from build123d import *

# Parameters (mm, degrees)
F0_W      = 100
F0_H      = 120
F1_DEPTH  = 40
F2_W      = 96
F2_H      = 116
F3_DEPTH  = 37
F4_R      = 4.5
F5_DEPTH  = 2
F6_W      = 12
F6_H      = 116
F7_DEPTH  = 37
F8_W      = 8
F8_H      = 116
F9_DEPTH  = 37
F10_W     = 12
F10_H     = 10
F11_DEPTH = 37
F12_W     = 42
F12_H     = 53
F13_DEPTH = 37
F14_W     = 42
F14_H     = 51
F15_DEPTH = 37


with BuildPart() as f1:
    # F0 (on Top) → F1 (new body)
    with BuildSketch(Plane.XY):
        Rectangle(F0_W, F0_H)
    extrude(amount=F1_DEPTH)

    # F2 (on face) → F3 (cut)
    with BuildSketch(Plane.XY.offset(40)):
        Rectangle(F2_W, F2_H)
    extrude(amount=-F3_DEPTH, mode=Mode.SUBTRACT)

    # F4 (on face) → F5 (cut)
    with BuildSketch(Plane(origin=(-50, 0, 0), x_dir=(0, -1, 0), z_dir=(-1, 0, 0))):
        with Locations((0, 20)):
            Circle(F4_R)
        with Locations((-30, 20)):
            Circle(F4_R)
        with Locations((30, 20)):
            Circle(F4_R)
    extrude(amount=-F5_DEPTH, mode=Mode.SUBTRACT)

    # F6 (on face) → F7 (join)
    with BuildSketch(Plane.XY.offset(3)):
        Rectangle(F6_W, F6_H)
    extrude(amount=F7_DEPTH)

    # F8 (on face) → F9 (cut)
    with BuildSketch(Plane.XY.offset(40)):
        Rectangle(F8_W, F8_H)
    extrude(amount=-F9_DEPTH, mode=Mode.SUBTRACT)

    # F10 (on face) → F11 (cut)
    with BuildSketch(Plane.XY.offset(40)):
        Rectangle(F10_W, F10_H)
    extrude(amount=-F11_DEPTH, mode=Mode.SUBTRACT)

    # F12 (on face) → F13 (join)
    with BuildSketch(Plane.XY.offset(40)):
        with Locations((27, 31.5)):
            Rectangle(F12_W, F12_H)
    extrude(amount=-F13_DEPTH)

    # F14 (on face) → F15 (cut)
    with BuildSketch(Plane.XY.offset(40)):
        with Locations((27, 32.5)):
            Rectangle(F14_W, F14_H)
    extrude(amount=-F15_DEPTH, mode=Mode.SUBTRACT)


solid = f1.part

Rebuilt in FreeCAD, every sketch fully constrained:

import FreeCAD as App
import Part
import Sketcher

V = App.Vector


def add_polygon(sketch, points):
    """Adds a closed chain of lines whose ends are joined by coincident constraints."""
    first, n = sketch.GeometryCount, len(points)
    for a, b in zip(points, points[1:] + points[:1]):
        sketch.addGeometry(Part.LineSegment(App.Vector(*a, 0), App.Vector(*b, 0)), False)
    for i in range(n):
        sketch.addConstraint(Sketcher.Constraint("Coincident", first + i, 2, first + (i + 1) % n, 1))

doc = App.newDocument("Part")
body = doc.addObject("PartDesign::Body", "Body")

# Sketch on XY plane
sketch1 = body.newObject("Sketcher::SketchObject", "Sketch")
sketch1.AttachmentSupport = (doc.getObject("XY_Plane"), [""])
sketch1.MapMode = "FlatFace"
add_polygon(sketch1, [(-50, 60), (-50, -60), (50, -60), (50, 60)])  # lines 0-3
sketch1.addConstraint([
    Sketcher.Constraint("Vertical", 0),
    Sketcher.Constraint("Horizontal", 1),
    Sketcher.Constraint("Vertical", 2),
    Sketcher.Constraint("Horizontal", 3),
    Sketcher.Constraint("Symmetric", 0, 2, 2, 2, -1, 1),
    Sketcher.Constraint("DistanceX", 1, 1, 1, 2, 100.0),
    Sketcher.Constraint("DistanceY", 0, 2, 0, 1, 120.0),
])
pad1 = body.newObject("PartDesign::Pad", "Pad")
pad1.Profile = sketch1
pad1.Length = 40

# Sketch on XY plane
sketch2 = body.newObject("Sketcher::SketchObject", "Sketch001")
sketch2.AttachmentSupport = (doc.getObject("XY_Plane"), [""])
sketch2.MapMode = "FlatFace"
sketch2.AttachmentOffset = App.Placement(V(0, 0, 40), App.Rotation())
add_polygon(sketch2, [(-48, 58), (-48, -58), (48, -58), (48, 58)])  # lines 0-3
sketch2.addConstraint([
    Sketcher.Constraint("Vertical", 0),
    Sketcher.Constraint("Horizontal", 1),
    Sketcher.Constraint("Vertical", 2),
    Sketcher.Constraint("Horizontal", 3),
    Sketcher.Constraint("Symmetric", 0, 2, 2, 2, -1, 1),
    Sketcher.Constraint("DistanceX", 1, 1, 1, 2, 96.0),
    Sketcher.Constraint("DistanceY", 0, 2, 0, 1, 116.0),
])
pocket1 = body.newObject("PartDesign::Pocket", "Pocket")
pocket1.Profile = sketch2
pocket1.Length = 37

# Sketch on YZ plane
sketch3 = body.newObject("Sketcher::SketchObject", "Sketch002")
sketch3.AttachmentSupport = (doc.getObject("YZ_Plane"), [""])
sketch3.MapMode = "FlatFace"
sketch3.AttachmentOffset = App.Placement(V(0, 0, -50), App.Rotation())
sketch3.addGeometry([
    Part.Circle(V(0, 20, 0), V(0, 0, 1), 4.5),
    Part.Circle(V(30, 20, 0), V(0, 0, 1), 4.5),
    Part.Circle(V(-30, 20, 0), V(0, 0, 1), 4.5),
], False)
sketch3.addConstraint([
    Sketcher.Constraint("Equal", 0, 1),
    Sketcher.Constraint("Equal", 1, 2),
    Sketcher.Constraint("Symmetric", 1, 3, 2, 3, -2),
    Sketcher.Constraint("PointOnObject", 0, 3, -2),
    Sketcher.Constraint("Horizontal", 0, 3, 1, 3),
    Sketcher.Constraint("Diameter", 0, 9.0),
    Sketcher.Constraint("DistanceY", -1, 1, 0, 3, 20.0),
    Sketcher.Constraint("DistanceX", -1, 1, 1, 3, 30.0),
])
pocket2 = body.newObject("PartDesign::Pocket", "Pocket001")
pocket2.Profile = sketch3
pocket2.Length = 2
pocket2.Reversed = True

# Sketch on XY plane
sketch4 = body.newObject("Sketcher::SketchObject", "Sketch003")
sketch4.AttachmentSupport = (doc.getObject("XY_Plane"), [""])
sketch4.MapMode = "FlatFace"
sketch4.AttachmentOffset = App.Placement(V(0, 0, 3), App.Rotation())
add_polygon(sketch4, [(-6, 58), (-6, -58), (6, -58), (6, 58)])  # lines 0-3
sketch4.addConstraint([
    Sketcher.Constraint("Vertical", 0),
    Sketcher.Constraint("Horizontal", 1),
    Sketcher.Constraint("Vertical", 2),
    Sketcher.Constraint("Horizontal", 3),
    Sketcher.Constraint("Symmetric", 0, 2, 2, 2, -1, 1),
    Sketcher.Constraint("DistanceX", 1, 1, 1, 2, 12.0),
    Sketcher.Constraint("DistanceY", 0, 2, 0, 1, 116.0),
])
pad2 = body.newObject("PartDesign::Pad", "Pad001")
pad2.Profile = sketch4
pad2.Length = 37

# Sketch on XY plane
sketch5 = body.newObject("Sketcher::SketchObject", "Sketch004")
sketch5.AttachmentSupport = (doc.getObject("XY_Plane"), [""])
sketch5.MapMode = "FlatFace"
sketch5.AttachmentOffset = App.Placement(V(0, 0, 40), App.Rotation())
add_polygon(sketch5, [(-4, 58), (-4, -58), (4, -58), (4, 58)])  # lines 0-3
sketch5.addConstraint([
    Sketcher.Constraint("Vertical", 0),
    Sketcher.Constraint("Horizontal", 1),
    Sketcher.Constraint("Vertical", 2),
    Sketcher.Constraint("Horizontal", 3),
    Sketcher.Constraint("Symmetric", 0, 2, 2, 2, -1, 1),
    Sketcher.Constraint("DistanceX", 1, 1, 1, 2, 8.0),
    Sketcher.Constraint("DistanceY", 0, 2, 0, 1, 116.0),
])
pocket3 = body.newObject("PartDesign::Pocket", "Pocket002")
pocket3.Profile = sketch5
pocket3.Length = 37

# Sketch on XY plane
sketch6 = body.newObject("Sketcher::SketchObject", "Sketch005")
sketch6.AttachmentSupport = (doc.getObject("XY_Plane"), [""])
sketch6.MapMode = "FlatFace"
sketch6.AttachmentOffset = App.Placement(V(0, 0, 40), App.Rotation())
add_polygon(sketch6, [(-6, 5), (-6, -5), (6, -5), (6, 5)])  # lines 0-3
sketch6.addConstraint([
    Sketcher.Constraint("Vertical", 0),
    Sketcher.Constraint("Horizontal", 1),
    Sketcher.Constraint("Vertical", 2),
    Sketcher.Constraint("Horizontal", 3),
    Sketcher.Constraint("Symmetric", 0, 2, 2, 2, -1, 1),
    Sketcher.Constraint("DistanceX", 1, 1, 1, 2, 12.0),
    Sketcher.Constraint("DistanceY", 0, 2, 0, 1, 10.0),
])
pocket4 = body.newObject("PartDesign::Pocket", "Pocket003")
pocket4.Profile = sketch6
pocket4.Length = 37

# Sketch on XY plane
sketch7 = body.newObject("Sketcher::SketchObject", "Sketch006")
sketch7.AttachmentSupport = (doc.getObject("XY_Plane"), [""])
sketch7.MapMode = "FlatFace"
sketch7.AttachmentOffset = App.Placement(V(0, 0, 40), App.Rotation())
add_polygon(sketch7, [(6, 58), (6, 5), (48, 5), (48, 58)])  # lines 0-3
sketch7.addConstraint([
    Sketcher.Constraint("Vertical", 0),
    Sketcher.Constraint("Horizontal", 1),
    Sketcher.Constraint("Vertical", 2),
    Sketcher.Constraint("Horizontal", 3),
    Sketcher.Constraint("DistanceX", 1, 1, 1, 2, 42.0),
    Sketcher.Constraint("DistanceY", 0, 2, 0, 1, 53.0),
    Sketcher.Constraint("DistanceX", -1, 1, 0, 2, 6.0),
    Sketcher.Constraint("DistanceY", -1, 1, 0, 2, 5.0),
])
pad3 = body.newObject("PartDesign::Pad", "Pad002")
pad3.Profile = sketch7
pad3.Length = 37
pad3.Reversed = True

# Sketch on XY plane
sketch8 = body.newObject("Sketcher::SketchObject", "Sketch007")
sketch8.AttachmentSupport = (doc.getObject("XY_Plane"), [""])
sketch8.MapMode = "FlatFace"
sketch8.AttachmentOffset = App.Placement(V(0, 0, 40), App.Rotation())
add_polygon(sketch8, [(6, 58), (6, 7), (48, 7), (48, 58)])  # lines 0-3
sketch8.addConstraint([
    Sketcher.Constraint("Vertical", 0),
    Sketcher.Constraint("Horizontal", 1),
    Sketcher.Constraint("Vertical", 2),
    Sketcher.Constraint("Horizontal", 3),
    Sketcher.Constraint("DistanceX", 1, 1, 1, 2, 42.0),
    Sketcher.Constraint("DistanceY", 0, 2, 0, 1, 51.0),
    Sketcher.Constraint("DistanceX", -1, 1, 0, 2, 6.0),
    Sketcher.Constraint("DistanceY", -1, 1, 0, 2, 7.0),
])
pocket5 = body.newObject("PartDesign::Pocket", "Pocket004")
pocket5.Profile = sketch8
pocket5.Length = 37

doc.recompute()
